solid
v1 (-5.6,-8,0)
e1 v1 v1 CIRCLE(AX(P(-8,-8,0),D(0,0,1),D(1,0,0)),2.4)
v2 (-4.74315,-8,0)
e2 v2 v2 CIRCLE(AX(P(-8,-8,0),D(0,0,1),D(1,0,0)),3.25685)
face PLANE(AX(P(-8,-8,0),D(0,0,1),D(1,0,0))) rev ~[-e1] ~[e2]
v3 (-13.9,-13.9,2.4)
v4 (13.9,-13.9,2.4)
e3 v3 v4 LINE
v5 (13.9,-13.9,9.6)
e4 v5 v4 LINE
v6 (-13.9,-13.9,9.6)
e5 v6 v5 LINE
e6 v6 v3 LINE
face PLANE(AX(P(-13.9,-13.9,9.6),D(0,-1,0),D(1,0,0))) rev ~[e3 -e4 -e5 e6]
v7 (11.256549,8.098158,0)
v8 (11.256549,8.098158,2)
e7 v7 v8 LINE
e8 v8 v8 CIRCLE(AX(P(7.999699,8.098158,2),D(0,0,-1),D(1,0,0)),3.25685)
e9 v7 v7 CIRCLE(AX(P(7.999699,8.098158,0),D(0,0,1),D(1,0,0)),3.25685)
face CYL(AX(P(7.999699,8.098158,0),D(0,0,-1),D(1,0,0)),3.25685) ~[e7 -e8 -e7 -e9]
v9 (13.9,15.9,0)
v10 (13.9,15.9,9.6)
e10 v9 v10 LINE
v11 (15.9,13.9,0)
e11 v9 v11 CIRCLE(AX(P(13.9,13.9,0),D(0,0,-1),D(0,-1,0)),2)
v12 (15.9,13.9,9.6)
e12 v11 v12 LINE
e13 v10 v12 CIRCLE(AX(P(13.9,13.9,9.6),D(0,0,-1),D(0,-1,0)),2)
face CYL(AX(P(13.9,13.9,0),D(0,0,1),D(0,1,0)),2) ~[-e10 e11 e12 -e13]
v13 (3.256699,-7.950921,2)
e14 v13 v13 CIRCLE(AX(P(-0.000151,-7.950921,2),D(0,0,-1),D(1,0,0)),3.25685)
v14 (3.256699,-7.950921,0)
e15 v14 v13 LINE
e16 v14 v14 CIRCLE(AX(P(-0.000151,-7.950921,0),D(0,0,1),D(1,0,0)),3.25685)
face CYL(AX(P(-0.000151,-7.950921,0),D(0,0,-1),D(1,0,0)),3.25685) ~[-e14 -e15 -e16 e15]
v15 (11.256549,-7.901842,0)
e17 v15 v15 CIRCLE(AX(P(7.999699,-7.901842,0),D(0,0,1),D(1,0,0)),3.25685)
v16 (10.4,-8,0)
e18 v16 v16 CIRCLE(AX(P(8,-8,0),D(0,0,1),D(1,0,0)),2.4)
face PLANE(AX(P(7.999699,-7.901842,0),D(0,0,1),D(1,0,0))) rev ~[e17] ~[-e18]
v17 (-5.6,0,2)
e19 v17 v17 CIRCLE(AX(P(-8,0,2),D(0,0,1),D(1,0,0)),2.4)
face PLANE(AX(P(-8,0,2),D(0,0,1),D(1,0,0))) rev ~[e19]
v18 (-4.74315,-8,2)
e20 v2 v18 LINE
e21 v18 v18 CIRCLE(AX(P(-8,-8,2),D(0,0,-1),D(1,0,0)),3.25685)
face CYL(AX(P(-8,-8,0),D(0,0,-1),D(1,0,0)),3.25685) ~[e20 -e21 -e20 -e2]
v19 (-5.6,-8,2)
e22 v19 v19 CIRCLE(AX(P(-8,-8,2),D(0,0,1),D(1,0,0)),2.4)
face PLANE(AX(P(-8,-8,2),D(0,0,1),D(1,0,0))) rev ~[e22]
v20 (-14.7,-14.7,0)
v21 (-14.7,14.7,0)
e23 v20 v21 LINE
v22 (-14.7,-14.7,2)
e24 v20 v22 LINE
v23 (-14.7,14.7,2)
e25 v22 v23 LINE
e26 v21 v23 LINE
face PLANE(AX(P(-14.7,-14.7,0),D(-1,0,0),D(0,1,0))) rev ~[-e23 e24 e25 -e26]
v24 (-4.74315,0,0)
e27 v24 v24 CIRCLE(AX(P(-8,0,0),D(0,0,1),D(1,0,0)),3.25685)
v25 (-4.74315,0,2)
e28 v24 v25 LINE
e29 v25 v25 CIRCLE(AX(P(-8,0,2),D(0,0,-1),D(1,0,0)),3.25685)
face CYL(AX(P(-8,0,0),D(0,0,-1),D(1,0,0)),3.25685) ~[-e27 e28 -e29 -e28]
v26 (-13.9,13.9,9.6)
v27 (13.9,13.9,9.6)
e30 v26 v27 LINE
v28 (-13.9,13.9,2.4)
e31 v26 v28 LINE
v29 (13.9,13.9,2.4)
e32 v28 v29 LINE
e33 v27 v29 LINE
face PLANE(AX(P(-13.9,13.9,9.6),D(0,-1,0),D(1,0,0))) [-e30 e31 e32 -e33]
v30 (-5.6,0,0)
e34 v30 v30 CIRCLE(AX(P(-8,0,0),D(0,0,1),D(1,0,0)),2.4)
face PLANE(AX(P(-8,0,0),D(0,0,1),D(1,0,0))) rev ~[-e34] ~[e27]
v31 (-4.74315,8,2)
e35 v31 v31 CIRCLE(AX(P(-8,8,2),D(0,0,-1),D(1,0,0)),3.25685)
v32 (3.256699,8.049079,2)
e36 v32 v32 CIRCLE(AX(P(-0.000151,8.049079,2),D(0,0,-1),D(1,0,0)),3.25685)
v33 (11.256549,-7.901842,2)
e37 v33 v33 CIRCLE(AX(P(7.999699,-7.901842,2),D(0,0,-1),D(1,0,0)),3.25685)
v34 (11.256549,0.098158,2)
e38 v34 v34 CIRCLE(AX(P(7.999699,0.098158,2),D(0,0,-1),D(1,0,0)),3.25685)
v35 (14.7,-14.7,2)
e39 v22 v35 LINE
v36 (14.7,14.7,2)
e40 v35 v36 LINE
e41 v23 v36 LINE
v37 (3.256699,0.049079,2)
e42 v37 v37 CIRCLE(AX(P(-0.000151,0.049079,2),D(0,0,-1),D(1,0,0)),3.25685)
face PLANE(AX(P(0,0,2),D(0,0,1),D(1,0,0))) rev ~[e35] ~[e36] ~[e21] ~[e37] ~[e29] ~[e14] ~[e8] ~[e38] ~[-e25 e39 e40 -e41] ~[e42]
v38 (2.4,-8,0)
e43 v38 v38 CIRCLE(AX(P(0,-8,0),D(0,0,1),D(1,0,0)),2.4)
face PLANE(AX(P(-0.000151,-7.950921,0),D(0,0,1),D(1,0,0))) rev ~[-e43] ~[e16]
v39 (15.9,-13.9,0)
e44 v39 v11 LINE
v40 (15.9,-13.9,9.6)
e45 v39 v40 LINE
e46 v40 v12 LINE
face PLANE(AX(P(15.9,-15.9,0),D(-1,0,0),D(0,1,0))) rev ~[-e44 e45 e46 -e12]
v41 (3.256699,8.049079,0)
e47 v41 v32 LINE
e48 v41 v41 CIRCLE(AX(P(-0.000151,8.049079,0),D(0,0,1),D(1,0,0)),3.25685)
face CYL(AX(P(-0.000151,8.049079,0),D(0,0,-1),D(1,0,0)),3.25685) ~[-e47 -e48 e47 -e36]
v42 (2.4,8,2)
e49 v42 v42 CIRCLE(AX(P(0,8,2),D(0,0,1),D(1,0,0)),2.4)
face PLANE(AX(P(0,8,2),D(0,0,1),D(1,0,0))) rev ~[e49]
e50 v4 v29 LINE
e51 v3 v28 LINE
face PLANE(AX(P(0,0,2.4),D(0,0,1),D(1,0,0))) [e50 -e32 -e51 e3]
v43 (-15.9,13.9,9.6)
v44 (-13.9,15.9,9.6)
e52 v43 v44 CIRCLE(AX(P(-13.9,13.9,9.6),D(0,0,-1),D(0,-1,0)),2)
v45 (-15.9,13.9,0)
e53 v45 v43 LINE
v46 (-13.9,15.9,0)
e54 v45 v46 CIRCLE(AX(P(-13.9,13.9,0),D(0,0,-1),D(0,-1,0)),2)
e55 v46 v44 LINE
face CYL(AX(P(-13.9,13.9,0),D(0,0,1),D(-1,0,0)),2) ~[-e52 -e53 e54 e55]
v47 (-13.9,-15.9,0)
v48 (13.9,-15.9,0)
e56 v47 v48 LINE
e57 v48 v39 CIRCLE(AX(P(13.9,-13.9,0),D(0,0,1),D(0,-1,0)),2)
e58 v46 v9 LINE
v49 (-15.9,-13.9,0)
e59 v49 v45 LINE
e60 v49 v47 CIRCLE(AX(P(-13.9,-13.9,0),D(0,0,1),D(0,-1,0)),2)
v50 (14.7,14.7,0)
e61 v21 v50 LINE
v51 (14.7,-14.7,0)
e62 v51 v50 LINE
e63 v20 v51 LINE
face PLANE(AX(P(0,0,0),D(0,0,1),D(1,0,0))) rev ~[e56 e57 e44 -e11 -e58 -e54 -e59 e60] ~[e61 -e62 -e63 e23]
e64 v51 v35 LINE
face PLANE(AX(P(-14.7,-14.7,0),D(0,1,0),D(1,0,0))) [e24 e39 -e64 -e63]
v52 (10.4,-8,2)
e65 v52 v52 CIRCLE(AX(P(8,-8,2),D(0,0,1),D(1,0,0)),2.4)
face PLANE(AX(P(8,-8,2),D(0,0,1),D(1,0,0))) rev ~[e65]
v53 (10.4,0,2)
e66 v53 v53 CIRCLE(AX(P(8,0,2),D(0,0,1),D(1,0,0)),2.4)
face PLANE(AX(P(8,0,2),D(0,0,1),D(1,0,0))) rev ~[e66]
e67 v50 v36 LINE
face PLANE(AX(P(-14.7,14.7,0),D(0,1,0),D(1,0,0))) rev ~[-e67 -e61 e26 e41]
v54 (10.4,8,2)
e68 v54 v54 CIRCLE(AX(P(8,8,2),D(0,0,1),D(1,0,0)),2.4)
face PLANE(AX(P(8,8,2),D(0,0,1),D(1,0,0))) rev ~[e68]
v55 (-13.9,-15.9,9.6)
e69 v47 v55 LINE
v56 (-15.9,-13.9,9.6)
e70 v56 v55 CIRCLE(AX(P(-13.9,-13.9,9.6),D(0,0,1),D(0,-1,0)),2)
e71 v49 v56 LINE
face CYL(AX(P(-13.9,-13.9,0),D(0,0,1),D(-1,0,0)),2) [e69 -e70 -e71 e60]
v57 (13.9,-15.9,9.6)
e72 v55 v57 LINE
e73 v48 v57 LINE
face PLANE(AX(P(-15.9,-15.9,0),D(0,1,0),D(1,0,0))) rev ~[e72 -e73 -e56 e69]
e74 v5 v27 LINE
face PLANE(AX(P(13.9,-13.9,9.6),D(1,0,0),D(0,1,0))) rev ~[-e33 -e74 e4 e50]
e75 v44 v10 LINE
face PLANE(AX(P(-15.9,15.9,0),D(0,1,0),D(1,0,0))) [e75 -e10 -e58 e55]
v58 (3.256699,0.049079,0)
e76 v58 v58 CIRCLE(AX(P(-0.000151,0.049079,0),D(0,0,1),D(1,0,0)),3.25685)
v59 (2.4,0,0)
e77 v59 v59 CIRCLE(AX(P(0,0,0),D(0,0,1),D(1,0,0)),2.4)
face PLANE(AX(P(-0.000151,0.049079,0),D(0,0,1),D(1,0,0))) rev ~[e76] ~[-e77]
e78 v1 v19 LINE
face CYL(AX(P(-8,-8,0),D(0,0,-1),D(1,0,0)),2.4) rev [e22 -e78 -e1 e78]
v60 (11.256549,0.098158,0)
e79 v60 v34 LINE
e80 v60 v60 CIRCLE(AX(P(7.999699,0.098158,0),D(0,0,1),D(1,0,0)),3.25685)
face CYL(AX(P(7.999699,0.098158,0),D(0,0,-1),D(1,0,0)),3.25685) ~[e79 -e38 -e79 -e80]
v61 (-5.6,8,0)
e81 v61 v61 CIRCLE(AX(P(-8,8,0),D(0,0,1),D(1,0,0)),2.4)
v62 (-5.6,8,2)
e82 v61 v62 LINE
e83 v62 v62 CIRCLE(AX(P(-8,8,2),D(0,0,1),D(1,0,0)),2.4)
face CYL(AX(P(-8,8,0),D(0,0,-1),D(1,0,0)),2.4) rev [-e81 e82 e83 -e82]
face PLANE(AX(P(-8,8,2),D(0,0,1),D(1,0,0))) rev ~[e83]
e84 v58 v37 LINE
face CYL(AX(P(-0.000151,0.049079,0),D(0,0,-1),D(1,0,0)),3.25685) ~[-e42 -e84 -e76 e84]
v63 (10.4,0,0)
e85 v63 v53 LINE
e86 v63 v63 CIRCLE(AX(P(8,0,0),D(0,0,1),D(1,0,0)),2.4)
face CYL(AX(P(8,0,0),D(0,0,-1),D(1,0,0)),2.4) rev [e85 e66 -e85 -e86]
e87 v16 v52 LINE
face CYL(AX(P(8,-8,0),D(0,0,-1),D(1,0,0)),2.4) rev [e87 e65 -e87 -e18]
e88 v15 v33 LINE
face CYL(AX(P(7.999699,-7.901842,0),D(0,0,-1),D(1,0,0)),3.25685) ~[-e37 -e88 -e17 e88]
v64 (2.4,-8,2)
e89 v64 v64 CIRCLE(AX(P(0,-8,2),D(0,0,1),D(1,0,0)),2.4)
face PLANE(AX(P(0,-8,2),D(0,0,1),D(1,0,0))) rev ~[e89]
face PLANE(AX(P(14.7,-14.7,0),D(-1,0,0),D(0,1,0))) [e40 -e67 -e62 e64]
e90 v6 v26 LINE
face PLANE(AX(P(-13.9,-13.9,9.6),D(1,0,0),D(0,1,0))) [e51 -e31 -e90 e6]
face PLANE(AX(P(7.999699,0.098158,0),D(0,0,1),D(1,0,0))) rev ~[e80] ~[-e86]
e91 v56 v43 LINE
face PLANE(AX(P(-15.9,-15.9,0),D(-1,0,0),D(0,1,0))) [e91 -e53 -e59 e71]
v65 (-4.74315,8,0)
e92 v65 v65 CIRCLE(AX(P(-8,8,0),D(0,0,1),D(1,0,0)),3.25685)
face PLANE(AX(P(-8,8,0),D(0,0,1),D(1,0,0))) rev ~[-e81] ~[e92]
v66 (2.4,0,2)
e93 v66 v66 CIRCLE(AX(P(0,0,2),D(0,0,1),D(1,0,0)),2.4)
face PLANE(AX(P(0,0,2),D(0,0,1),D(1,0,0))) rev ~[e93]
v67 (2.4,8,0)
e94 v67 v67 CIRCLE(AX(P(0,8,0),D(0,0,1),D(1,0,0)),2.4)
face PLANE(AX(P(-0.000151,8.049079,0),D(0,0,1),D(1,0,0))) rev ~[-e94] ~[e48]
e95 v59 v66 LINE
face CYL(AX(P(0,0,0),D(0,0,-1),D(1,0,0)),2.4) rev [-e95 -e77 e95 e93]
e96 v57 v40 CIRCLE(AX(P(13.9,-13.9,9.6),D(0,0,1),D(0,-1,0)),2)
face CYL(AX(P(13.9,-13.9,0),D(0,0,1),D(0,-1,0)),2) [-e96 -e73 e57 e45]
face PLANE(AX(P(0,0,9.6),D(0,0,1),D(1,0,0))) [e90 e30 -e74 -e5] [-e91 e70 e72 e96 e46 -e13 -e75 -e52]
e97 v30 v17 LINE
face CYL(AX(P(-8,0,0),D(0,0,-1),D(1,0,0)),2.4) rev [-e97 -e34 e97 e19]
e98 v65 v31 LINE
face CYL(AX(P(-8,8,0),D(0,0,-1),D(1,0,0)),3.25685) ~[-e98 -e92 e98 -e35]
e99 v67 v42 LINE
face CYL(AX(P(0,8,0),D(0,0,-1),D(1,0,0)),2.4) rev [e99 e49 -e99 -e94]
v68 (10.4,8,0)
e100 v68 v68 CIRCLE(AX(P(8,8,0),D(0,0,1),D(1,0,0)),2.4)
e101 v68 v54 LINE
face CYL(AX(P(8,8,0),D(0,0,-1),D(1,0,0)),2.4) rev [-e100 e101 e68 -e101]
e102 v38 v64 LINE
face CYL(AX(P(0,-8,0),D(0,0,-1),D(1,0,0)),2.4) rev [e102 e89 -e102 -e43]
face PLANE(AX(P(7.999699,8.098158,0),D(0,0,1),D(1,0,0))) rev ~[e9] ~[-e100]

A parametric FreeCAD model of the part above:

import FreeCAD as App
import Part
import Sketcher


def edges_at(feature, points):
    """Names of the edges that pass closest to the given points."""
    edges = feature.Shape.Edges
    near = lambda p: min(range(len(edges)), key=lambda i: edges[i].distToShape(Part.Vertex(*p))[0])
    return sorted({f"Edge{near(p) + 1}" for p in points})

doc = App.newDocument("Part")
body = doc.addObject("PartDesign::Body", "Body")

sketch1 = body.newObject("Sketcher::SketchObject", "Sketch")
sketch1.AttachmentSupport = (doc.getObject("XY_Plane"), [""])
sketch1.MapMode = "FlatFace"
sketch1.addGeometry(Part.LineSegment(App.Vector(-16, 16, 0), App.Vector(-16, -16, 0)), False)
sketch1.addGeometry(Part.LineSegment(App.Vector(-16, -16, 0), App.Vector(16, -16, 0)), False)
sketch1.addGeometry(Part.LineSegment(App.Vector(16, -16, 0), App.Vector(16, 16, 0)), False)
sketch1.addGeometry(Part.LineSegment(App.Vector(16, 16, 0), App.Vector(-16, 16, 0)), False)
sketch1.addConstraint(Sketcher.Constraint("Coincident", 0, 2, 1, 1))
sketch1.addConstraint(Sketcher.Constraint("Coincident", 1, 2, 2, 1))
sketch1.addConstraint(Sketcher.Constraint("Coincident", 2, 2, 3, 1))
sketch1.addConstraint(Sketcher.Constraint("Coincident", 3, 2, 0, 1))
sketch1.addConstraint(Sketcher.Constraint("Vertical", 0))
sketch1.addConstraint(Sketcher.Constraint("Horizontal", 1))
sketch1.addConstraint(Sketcher.Constraint("Vertical", 2))
sketch1.addConstraint(Sketcher.Constraint("Horizontal", 3))
sketch1.addConstraint(Sketcher.Constraint("Symmetric", 0, 2, 2, 2, -1, 1))
sketch1.addConstraint(Sketcher.Constraint("Equal", 3, 0))
sketch1.addConstraint(Sketcher.Constraint("DistanceX", 1, 1, 1, 2, 31.8))
pad1 = body.newObject("PartDesign::Pad", "Pad")
pad1.Profile = sketch1
pad1.Length = 9.6

sketch2 = body.newObject("Sketcher::SketchObject", "Sketch001")
sketch2.AttachmentSupport = (doc.getObject("XY_Plane"), [""])
sketch2.MapMode = "FlatFace"
sketch2.addGeometry(Part.LineSegment(App.Vector(-15, 15, 0), App.Vector(-15, -15, 0)), False)
sketch2.addGeometry(Part.LineSegment(App.Vector(-15, -15, 0), App.Vector(15, -15, 0)), False)
sketch2.addGeometry(Part.LineSegment(App.Vector(15, -15, 0), App.Vector(15, 15, 0)), False)
sketch2.addGeometry(Part.LineSegment(App.Vector(15, 15, 0), App.Vector(-15, 15, 0)), False)
sketch2.addConstraint(Sketcher.Constraint("Coincident", 0, 2, 1, 1))
sketch2.addConstraint(Sketcher.Constraint("Coincident", 1, 2, 2, 1))
sketch2.addConstraint(Sketcher.Constraint("Coincident", 2, 2, 3, 1))
sketch2.addConstraint(Sketcher.Constraint("Coincident", 3, 2, 0, 1))
sketch2.addConstraint(Sketcher.Constraint("Vertical", 0))
sketch2.addConstraint(Sketcher.Constraint("Horizontal", 1))
sketch2.addConstraint(Sketcher.Constraint("Vertical", 2))
sketch2.addConstraint(Sketcher.Constraint("Horizontal", 3))
sketch2.addConstraint(Sketcher.Constraint("Symmetric", 0, 2, 2, 2, -1, 1))
sketch2.addConstraint(Sketcher.Constraint("Equal", 3, 0))
sketch2.addConstraint(Sketcher.Constraint("DistanceX", 1, 1, 1, 2, 29.4))
pocket1 = body.newObject("PartDesign::Pocket", "Pocket")
pocket1.Profile = sketch2
pocket1.Length = 2
pocket1.Reversed = True
doc.recompute()

fillet = body.newObject("PartDesign::Fillet", "Fillet")
fillet.Base = (pocket1, edges_at(pocket1, [
    (-15.9, -15.9, 4.8),
    (-15.9, 15.9, 4.8),
    (15.9, 15.9, 4.8),
    (15.9, -15.9, 4.8),
]))
fillet.Radius = 2

sketch3 = body.newObject("Sketcher::SketchObject", "Sketch002")
sketch3.AttachmentSupport = (doc.getObject("XY_Plane"), [""])
sketch3.MapMode = "FlatFace"
sketch3.AttachmentOffset = App.Placement(App.Vector(0, 0, 9.6), App.Rotation())
sketch3.addGeometry(Part.LineSegment(App.Vector(-14, 14, 0), App.Vector(-14, -14, 0)), False)
sketch3.addGeometry(Part.LineSegment(App.Vector(-14, -14, 0), App.Vector(14, -14, 0)), False)
sketch3.addGeometry(Part.LineSegment(App.Vector(14, -14, 0), App.Vector(14, 14, 0)), False)
sketch3.addGeometry(Part.LineSegment(App.Vector(14, 14, 0), App.Vector(-14, 14, 0)), False)
sketch3.addConstraint(Sketcher.Constraint("Coincident", 0, 2, 1, 1))
sketch3.addConstraint(Sketcher.Constraint("Coincident", 1, 2, 2, 1))
sketch3.addConstraint(Sketcher.Constraint("Coincident", 2, 2, 3, 1))
sketch3.addConstraint(Sketcher.Constraint("Coincident", 3, 2, 0, 1))
sketch3.addConstraint(Sketcher.Constraint("Vertical", 0))
sketch3.addConstraint(Sketcher.Constraint("Horizontal", 1))
sketch3.addConstraint(Sketcher.Constraint("Vertical", 2))
sketch3.addConstraint(Sketcher.Constraint("Horizontal", 3))
sketch3.addConstraint(Sketcher.Constraint("Symmetric", 0, 2, 2, 2, -1, 1))
sketch3.addConstraint(Sketcher.Constraint("Equal", 3, 0))
sketch3.addConstraint(Sketcher.Constraint("DistanceX", 1, 1, 1, 2, 27.8))
pocket2 = body.newObject("PartDesign::Pocket", "Pocket001")
pocket2.Profile = sketch3
pocket2.Length = 7.2

sketch4 = body.newObject("Sketcher::SketchObject", "Sketch003")
sketch4.AttachmentSupport = (doc.getObject("XY_Plane"), [""])
sketch4.MapMode = "FlatFace"
sketch4.addGeometry(Part.Circle(App.Vector(-8, -8, 0), App.Vector(0, 0, 1), 3.3), False)
sketch4.addGeometry(Part.Circle(App.Vector(-8, 0, 0), App.Vector(0, 0, 1), 3.3), False)
sketch4.addGeometry(Part.Circle(App.Vector(-8, 8, 0), App.Vector(0, 0, 1), 3.3), False)
sketch4.addGeometry(Part.Circle(App.Vector(0, -8, 0), App.Vector(0, 0, 1), 3.3), False)
sketch4.addGeometry(Part.Circle(App.Vector(0, 0, 0), App.Vector(0, 0, 1), 3.3), False)
sketch4.addGeometry(Part.Circle(App.Vector(0, 8, 0), App.Vector(0, 0, 1), 3.3), False)
sketch4.addGeometry(Part.Circle(App.Vector(8, -7.9, 0), App.Vector(0, 0, 1), 3.3), False)
sketch4.addGeometry(Part.Circle(App.Vector(8, 0.1, 0), App.Vector(0, 0, 1), 3.3), False)
sketch4.addGeometry(Part.Circle(App.Vector(8, 8.1, 0), App.Vector(0, 0, 1), 3.3), False)
sketch4.addConstraint(Sketcher.Constraint("Equal", 0, 1))
sketch4.addConstraint(Sketcher.Constraint("Equal", 1, 2))
sketch4.addConstraint(Sketcher.Constraint("Equal", 2, 3))
sketch4.addConstraint(Sketcher.Constraint("Equal", 3, 4))
sketch4.addConstraint(Sketcher.Constraint("Equal", 4, 5))
sketch4.addConstraint(Sketcher.Constraint("Equal", 5, 6))
sketch4.addConstraint(Sketcher.Constraint("Equal", 6, 7))
sketch4.addConstraint(Sketcher.Constraint("Equal", 7, 8))
sketch4.addConstraint(Sketcher.Constraint("Symmetric", 0, 3, 2, 3, -1))
sketch4.addConstraint(Sketcher.Constraint("PointOnObject", 1, 3, -1))
sketch4.addConstraint(Sketcher.Constraint("Vertical", 0, 3, 1, 3))
sketch4.addConstraint(Sketcher.Constraint("Vertical", 3, 3, 4, 3))
sketch4.addConstraint(Sketcher.Constraint("Vertical", 4, 3, 5, 3))
sketch4.addConstraint(Sketcher.Constraint("Vertical", 6, 3, 7, 3))
sketch4.addConstraint(Sketcher.Constraint("Vertical", 7, 3, 8, 3))
sketch4.addConstraint(Sketcher.Constraint("DistanceX", 0, 3, -1, 1, 8.0))
sketch4.addConstraint(Sketcher.Constraint("DistanceY", 0, 3, -1, 1, 8.0))
sketch4.addConstraint(Sketcher.Constraint("DistanceY", 3, 3, 4, 3, 8.0))
sketch4.addConstraint(Sketcher.Constraint("DistanceY", 4, 3, 5, 3, 8.0))
sketch4.addConstraint(Sketcher.Constraint("DistanceY", 6, 3, 7, 3, 8.0))
sketch4.addConstraint(Sketcher.Constraint("DistanceY", 7, 3, 8, 3, 8.0))
sketch4.addConstraint(Sketcher.Constraint("Diameter", 0, 6.5137))
sketch4.addConstraint(Sketcher.Constraint("DistanceX", -1, 1, 6, 3, 7.999699))
sketch4.addConstraint(Sketcher.Constraint("DistanceX", 3, 3, -1, 1, 0.000151))
sketch4.addConstraint(Sketcher.Constraint("DistanceY", 3, 3, -1, 1, 7.950921))
sketch4.addConstraint(Sketcher.Constraint("DistanceY", 3, 3, 6, 3, 0.049079))
pad2 = body.newObject("PartDesign::Pad", "Pad001")
pad2.Profile = sketch4
pad2.Length = 2.4

sketch5 = body.newObject("Sketcher::SketchObject", "Sketch004")
sketch5.AttachmentSupport = (doc.getObject("XY_Plane"), [""])
sketch5.MapMode = "FlatFace"
sketch5.addGeometry(Part.Circle(App.Vector(-8, -8, 0), App.Vector(0, 0, 1), 2.4), False)
sketch5.addGeometry(Part.Circle(App.Vector(-8, 0, 0), App.Vector(0, 0, 1), 2.4), False)
sketch5.addGeometry(Part.Circle(App.Vector(-8, 8, 0), App.Vector(0, 0, 1), 2.4), False)
sketch5.addGeometry(Part.Circle(App.Vector(0, -8, 0), App.Vector(0, 0, 1), 2.4), False)
sketch5.addGeometry(Part.Circle(App.Vector(0, 0, 0), App.Vector(0, 0, 1), 2.4), False)
sketch5.addGeometry(Part.Circle(App.Vector(0, 8, 0), App.Vector(0, 0, 1), 2.4), False)
sketch5.addGeometry(Part.Circle(App.Vector(8, -8, 0), App.Vector(0, 0, 1), 2.4), False)
sketch5.addGeometry(Part.Circle(App.Vector(8, 0, 0), App.Vector(0, 0, 1), 2.4), False)
sketch5.addGeometry(Part.Circle(App.Vector(8, 8, 0), App.Vector(0, 0, 1), 2.4), False)
sketch5.addConstraint(Sketcher.Constraint("Coincident", 4, 3, -1, 1))
sketch5.addConstraint(Sketcher.Constraint("Equal", 0, 1))
sketch5.addConstraint(Sketcher.Constraint("Equal", 1, 2))
sketch5.addConstraint(Sketcher.Constraint("Equal", 2, 3))
sketch5.addConstraint(Sketcher.Constraint("Equal", 3, 4))
sketch5.addConstraint(Sketcher.Constraint("Equal", 4, 5))
sketch5.addConstraint(Sketcher.Constraint("Equal", 5, 6))
sketch5.addConstraint(Sketcher.Constraint("Equal", 6, 7))
sketch5.addConstraint(Sketcher.Constraint("Equal", 7, 8))
sketch5.addConstraint(Sketcher.Constraint("Symmetric", 3, 3, 5, 3, -1, 1))
sketch5.addConstraint(Sketcher.Constraint("Symmetric", 2, 3, 6, 3, -1, 1))
sketch5.addConstraint(Sketcher.Constraint("Symmetric", 1, 3, 7, 3, -1, 1))
sketch5.addConstraint(Sketcher.Constraint("Symmetric", 0, 3, 8, 3, -1, 1))
sketch5.addConstraint(Sketcher.Constraint("Symmetric", 0, 3, 6, 3, -2))
sketch5.addConstraint(Sketcher.Constraint("PointOnObject", 1, 3, -1))
sketch5.addConstraint(Sketcher.Constraint("PointOnObject", 3, 3, -2))
sketch5.addConstraint(Sketcher.Constraint("Horizontal", 0, 3, 3, 3))
sketch5.addConstraint(Sketcher.Constraint("Vertical", 0, 3, 1, 3))
sketch5.addConstraint(Sketcher.Constraint("Diameter", 0, 4.8))
sketch5.addConstraint(Sketcher.Constraint("DistanceX", 0, 3, -1, 1, 8.0))
sketch5.addConstraint(Sketcher.Constraint("DistanceY", 0, 3, -1, 1, 8.0))
pocket3 = body.newObject("PartDesign::Pocket", "Pocket002")
pocket3.Profile = sketch5
pocket3.Length = 2
pocket3.Reversed = True

doc.recompute()
